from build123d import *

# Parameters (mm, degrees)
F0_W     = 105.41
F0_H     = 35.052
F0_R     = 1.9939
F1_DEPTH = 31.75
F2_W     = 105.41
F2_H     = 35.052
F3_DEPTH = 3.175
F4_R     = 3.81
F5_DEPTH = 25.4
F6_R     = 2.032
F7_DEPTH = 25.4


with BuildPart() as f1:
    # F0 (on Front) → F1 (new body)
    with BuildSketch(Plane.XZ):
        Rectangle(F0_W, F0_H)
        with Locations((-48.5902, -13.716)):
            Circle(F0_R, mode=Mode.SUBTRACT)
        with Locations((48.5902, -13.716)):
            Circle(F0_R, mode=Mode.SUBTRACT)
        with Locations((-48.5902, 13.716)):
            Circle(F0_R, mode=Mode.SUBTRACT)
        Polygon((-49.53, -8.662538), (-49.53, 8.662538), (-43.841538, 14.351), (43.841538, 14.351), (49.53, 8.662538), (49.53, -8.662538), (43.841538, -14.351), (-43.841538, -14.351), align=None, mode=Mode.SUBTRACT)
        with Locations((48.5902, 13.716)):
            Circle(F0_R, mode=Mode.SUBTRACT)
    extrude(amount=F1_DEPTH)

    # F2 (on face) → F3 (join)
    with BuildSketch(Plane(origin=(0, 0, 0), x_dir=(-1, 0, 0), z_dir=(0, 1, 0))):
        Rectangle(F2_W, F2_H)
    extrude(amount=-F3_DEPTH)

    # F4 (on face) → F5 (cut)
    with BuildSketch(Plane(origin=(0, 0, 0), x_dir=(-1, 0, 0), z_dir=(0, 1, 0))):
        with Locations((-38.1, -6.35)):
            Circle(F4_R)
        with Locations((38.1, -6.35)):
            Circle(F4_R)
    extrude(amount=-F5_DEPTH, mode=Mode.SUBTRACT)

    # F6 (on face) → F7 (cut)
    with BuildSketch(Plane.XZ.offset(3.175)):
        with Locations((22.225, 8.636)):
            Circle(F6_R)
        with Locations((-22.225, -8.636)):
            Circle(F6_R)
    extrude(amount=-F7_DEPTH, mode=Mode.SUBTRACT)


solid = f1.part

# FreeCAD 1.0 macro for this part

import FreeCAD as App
import Part
import Sketcher
Q = App.Units.Quantity

doc = App.newDocument("Part")
body = doc.addObject("PartDesign::Body", "Body")

# Sketch on XZ plane
sketch1 = doc.addObject("Sketcher::SketchObject", "Sketch")
body.addObject(sketch1)
sketch1.AttachmentSupport = (doc.XZ_Plane, [""])
sketch1.MapMode = "FlatFace"
sketch1.addGeometry([
    Part.LineSegment(App.Vector(-52.705, 17.526, 0), App.Vector(-52.705, -17.526, 0)),  # 0
    Part.LineSegment(App.Vector(-52.705, -17.526, 0), App.Vector(52.705, -17.526, 0)),  # 1
    Part.LineSegment(App.Vector(52.705, -17.526, 0), App.Vector(52.705, 17.526, 0)),  # 2
    Part.LineSegment(App.Vector(52.705, 17.526, 0), App.Vector(-52.705, 17.526, 0)),  # 3
    Part.Circle(App.Vector(-48.5902, -13.716, 0), App.Vector(0, 0, 1), 1.9939),  # 4
    Part.Circle(App.Vector(48.5902, -13.716, 0), App.Vector(0, 0, 1), 1.9939),  # 5
    Part.Circle(App.Vector(-48.5902, 13.716, 0), App.Vector(0, 0, 1), 1.9939),  # 6
    Part.LineSegment(App.Vector(-43.841538, -14.351, 0), App.Vector(-49.53, -8.662538, 0)),  # 7
    Part.LineSegment(App.Vector(-49.53, -8.662538, 0), App.Vector(-49.53, 8.662538, 0)),  # 8
    Part.LineSegment(App.Vector(-49.53, 8.662538, 0), App.Vector(-43.841538, 14.351, 0)),  # 9
    Part.LineSegment(App.Vector(-43.841538, 14.351, 0), App.Vector(43.841538, 14.351, 0)),  # 10
    Part.LineSegment(App.Vector(43.841538, 14.351, 0), App.Vector(49.53, 8.662538, 0)),  # 11
    Part.LineSegment(App.Vector(49.53, 8.662538, 0), App.Vector(49.53, -8.662538, 0)),  # 12
    Part.LineSegment(App.Vector(49.53, -8.662538, 0), App.Vector(43.841538, -14.351, 0)),  # 13
    Part.LineSegment(App.Vector(43.841538, -14.351, 0), App.Vector(-43.841538, -14.351, 0)),  # 14
    Part.Circle(App.Vector(48.5902, 13.716, 0), App.Vector(0, 0, 1), 1.9939),  # 15
], False)
sketch1.addConstraint([
    Sketcher.Constraint("Coincident", 0, 2, 1, 1),
    Sketcher.Constraint("Coincident", 1, 2, 2, 1),
    Sketcher.Constraint("Coincident", 2, 2, 3, 1),
    Sketcher.Constraint("Coincident", 3, 2, 0, 1),
    Sketcher.Constraint("Coincident", 7, 2, 8, 1),
    Sketcher.Constraint("Coincident", 8, 2, 9, 1),
    Sketcher.Constraint("Coincident", 9, 2, 10, 1),
    Sketcher.Constraint("Coincident", 10, 2, 11, 1),
    Sketcher.Constraint("Coincident", 11, 2, 12, 1),
    Sketcher.Constraint("Coincident", 12, 2, 13, 1),
    Sketcher.Constraint("Coincident", 13, 2, 14, 1),
    Sketcher.Constraint("Coincident", 14, 2, 7, 1),
    Sketcher.Constraint("Vertical", 0),
    Sketcher.Constraint("Horizontal", 1),
    Sketcher.Constraint("Vertical", 2),
    Sketcher.Constraint("Horizontal", 3),
    Sketcher.Constraint("Vertical", 8),
    Sketcher.Constraint("Horizontal", 10),
    Sketcher.Constraint("Vertical", 12),
    Sketcher.Constraint("Horizontal", 14),
    Sketcher.Constraint("Equal", 4, 5),
    Sketcher.Constraint("Equal", 5, 6),
    Sketcher.Constraint("Equal", 6, 15),
    Sketcher.Constraint("Symmetric", 5, 3, 6, 3, -1, 1),
    Sketcher.Constraint("Symmetric", 4, 3, 15, 3, -1, 1),
    Sketcher.Constraint("Symmetric", 0, 2, 2, 2, -1, 1),
    Sketcher.Constraint("Symmetric", 7, 2, 11, 2, -1, 1),
    Sketcher.Constraint("Symmetric", 9, 2, 13, 2, -1, 1),
    Sketcher.Constraint("Symmetric", 4, 3, 5, 3, -2),
    Sketcher.Constraint("Perpendicular", 7, 9),
    Sketcher.Constraint("Perpendicular", 9, 11),
    Sketcher.Constraint("Perpendicular", 11, 13),
    Sketcher.Constraint("Horizontal", 8, 2, 11, 2),
    Sketcher.Constraint("Vertical", 10, 2, 13, 2),
    Sketcher.Constraint("Diameter", 4, Q("0.157 in")),
    Sketcher.Constraint("DistanceX", 1, 1, 1, 2, Q("4.15 in")),
    Sketcher.Constraint("DistanceY", 0, 2, 0, 1, Q("1.38 in")),
    Sketcher.Constraint("DistanceY", 4, 3, -1, 1, Q("0.54 in")),
    Sketcher.Constraint("DistanceX", 7, 2, -1, 1, Q("1.95 in")),
    Sketcher.Constraint("DistanceX", 4, 3, -1, 1, Q("1.913 in")),
    Sketcher.Constraint("DistanceY", -1, 1, 9, 2, Q("0.565 in")),
    Sketcher.Constraint("Distance", 7, Q("8.0447 mm")),
])
pad1 = doc.addObject("PartDesign::Pad", "Pad")
body.addObject(pad1)
pad1.Profile = sketch1
pad1.Length = Q("1.25 in")

# Sketch on XZ plane
sketch2 = doc.addObject("Sketcher::SketchObject", "Sketch001")
body.addObject(sketch2)
sketch2.AttachmentSupport = (doc.XZ_Plane, [""])
sketch2.MapMode = "FlatFace"
sketch2.addGeometry([
    Part.LineSegment(App.Vector(52.705, 17.526, 0), App.Vector(52.705, -17.526, 0)),
    Part.LineSegment(App.Vector(52.705, -17.526, 0), App.Vector(-52.705, -17.526, 0)),
    Part.LineSegment(App.Vector(-52.705, -17.526, 0), App.Vector(-52.705, 17.526, 0)),
    Part.LineSegment(App.Vector(-52.705, 17.526, 0), App.Vector(52.705, 17.526, 0)),
], False)
sketch2.addConstraint([
    Sketcher.Constraint("Coincident", 0, 2, 1, 1),
    Sketcher.Constraint("Coincident", 1, 2, 2, 1),
    Sketcher.Constraint("Coincident", 2, 2, 3, 1),
    Sketcher.Constraint("Coincident", 3, 2, 0, 1),
    Sketcher.Constraint("Vertical", 0),
    Sketcher.Constraint("Horizontal", 1),
    Sketcher.Constraint("Vertical", 2),
    Sketcher.Constraint("Horizontal", 3),
    Sketcher.Constraint("Symmetric", 0, 2, 2, 2, -1, 1),
    Sketcher.Constraint("DistanceX", 1, 2, 1, 1, Q("4.15 in")),
    Sketcher.Constraint("DistanceY", 0, 2, 0, 1, Q("1.38 in")),
])
pad2 = doc.addObject("PartDesign::Pad", "Pad001")
body.addObject(pad2)
pad2.Profile = sketch2
pad2.Length = Q("0.125 in")

# Sketch on XZ plane
sketch3 = doc.addObject("Sketcher::SketchObject", "Sketch002")
body.addObject(sketch3)
sketch3.AttachmentSupport = (doc.XZ_Plane, [""])
sketch3.MapMode = "FlatFace"
sketch3.addGeometry([
    Part.Circle(App.Vector(38.1, -6.35, 0), App.Vector(0, 0, 1), 3.81),
    Part.Circle(App.Vector(-38.1, -6.35, 0), App.Vector(0, 0, 1), 3.81),
], False)
sketch3.addConstraint([
    Sketcher.Constraint("Equal", 0, 1),
    Sketcher.Constraint("Symmetric", 0, 3, 1, 3, -2),
    Sketcher.Constraint("Diameter", 0, Q("0.3 in")),
    Sketcher.Constraint("DistanceX", 1, 3, 0, 3, Q("3 in")),
    Sketcher.Constraint("DistanceY", 0, 3, -1, 1, Q("0.25 in")),
])
pocket1 = doc.addObject("PartDesign::Pocket", "Pocket")
body.addObject(pocket1)
pocket1.Profile = sketch3
pocket1.Length = Q("1 in")
pocket1.Reversed = True

# Sketch on XZ plane
sketch4 = doc.addObject("Sketcher::SketchObject", "Sketch003")
body.addObject(sketch4)
sketch4.AttachmentSupport = (doc.XZ_Plane, [""])
sketch4.MapMode = "FlatFace"
sketch4.AttachmentOffset = App.Placement(App.Vector(0, 0, 0.125 * 25.4), App.Rotation())
sketch4.addGeometry([
    Part.Circle(App.Vector(22.225, 8.636, 0), App.Vector(0, 0, 1), 2.032),
    Part.Circle(App.Vector(-22.225, -8.636, 0), App.Vector(0, 0, 1), 2.032),
], False)
sketch4.addConstraint([
    Sketcher.Constraint("Equal", 0, 1),
    Sketcher.Constraint("Symmetric", 0, 3, 1, 3, -1, 1),
    Sketcher.Constraint("Diameter", 0, Q("0.16 in")),
    Sketcher.Constraint("DistanceY", -1, 1, 0, 3, Q("0.34 in")),
    Sketcher.Constraint("DistanceX", 1, 3, 0, 3, Q("1.75 in")),
])
pocket2 = doc.addObject("PartDesign::Pocket", "Pocket001")
body.addObject(pocket2)
pocket2.Profile = sketch4
pocket2.Length = Q("1 in")

doc.recompute()
